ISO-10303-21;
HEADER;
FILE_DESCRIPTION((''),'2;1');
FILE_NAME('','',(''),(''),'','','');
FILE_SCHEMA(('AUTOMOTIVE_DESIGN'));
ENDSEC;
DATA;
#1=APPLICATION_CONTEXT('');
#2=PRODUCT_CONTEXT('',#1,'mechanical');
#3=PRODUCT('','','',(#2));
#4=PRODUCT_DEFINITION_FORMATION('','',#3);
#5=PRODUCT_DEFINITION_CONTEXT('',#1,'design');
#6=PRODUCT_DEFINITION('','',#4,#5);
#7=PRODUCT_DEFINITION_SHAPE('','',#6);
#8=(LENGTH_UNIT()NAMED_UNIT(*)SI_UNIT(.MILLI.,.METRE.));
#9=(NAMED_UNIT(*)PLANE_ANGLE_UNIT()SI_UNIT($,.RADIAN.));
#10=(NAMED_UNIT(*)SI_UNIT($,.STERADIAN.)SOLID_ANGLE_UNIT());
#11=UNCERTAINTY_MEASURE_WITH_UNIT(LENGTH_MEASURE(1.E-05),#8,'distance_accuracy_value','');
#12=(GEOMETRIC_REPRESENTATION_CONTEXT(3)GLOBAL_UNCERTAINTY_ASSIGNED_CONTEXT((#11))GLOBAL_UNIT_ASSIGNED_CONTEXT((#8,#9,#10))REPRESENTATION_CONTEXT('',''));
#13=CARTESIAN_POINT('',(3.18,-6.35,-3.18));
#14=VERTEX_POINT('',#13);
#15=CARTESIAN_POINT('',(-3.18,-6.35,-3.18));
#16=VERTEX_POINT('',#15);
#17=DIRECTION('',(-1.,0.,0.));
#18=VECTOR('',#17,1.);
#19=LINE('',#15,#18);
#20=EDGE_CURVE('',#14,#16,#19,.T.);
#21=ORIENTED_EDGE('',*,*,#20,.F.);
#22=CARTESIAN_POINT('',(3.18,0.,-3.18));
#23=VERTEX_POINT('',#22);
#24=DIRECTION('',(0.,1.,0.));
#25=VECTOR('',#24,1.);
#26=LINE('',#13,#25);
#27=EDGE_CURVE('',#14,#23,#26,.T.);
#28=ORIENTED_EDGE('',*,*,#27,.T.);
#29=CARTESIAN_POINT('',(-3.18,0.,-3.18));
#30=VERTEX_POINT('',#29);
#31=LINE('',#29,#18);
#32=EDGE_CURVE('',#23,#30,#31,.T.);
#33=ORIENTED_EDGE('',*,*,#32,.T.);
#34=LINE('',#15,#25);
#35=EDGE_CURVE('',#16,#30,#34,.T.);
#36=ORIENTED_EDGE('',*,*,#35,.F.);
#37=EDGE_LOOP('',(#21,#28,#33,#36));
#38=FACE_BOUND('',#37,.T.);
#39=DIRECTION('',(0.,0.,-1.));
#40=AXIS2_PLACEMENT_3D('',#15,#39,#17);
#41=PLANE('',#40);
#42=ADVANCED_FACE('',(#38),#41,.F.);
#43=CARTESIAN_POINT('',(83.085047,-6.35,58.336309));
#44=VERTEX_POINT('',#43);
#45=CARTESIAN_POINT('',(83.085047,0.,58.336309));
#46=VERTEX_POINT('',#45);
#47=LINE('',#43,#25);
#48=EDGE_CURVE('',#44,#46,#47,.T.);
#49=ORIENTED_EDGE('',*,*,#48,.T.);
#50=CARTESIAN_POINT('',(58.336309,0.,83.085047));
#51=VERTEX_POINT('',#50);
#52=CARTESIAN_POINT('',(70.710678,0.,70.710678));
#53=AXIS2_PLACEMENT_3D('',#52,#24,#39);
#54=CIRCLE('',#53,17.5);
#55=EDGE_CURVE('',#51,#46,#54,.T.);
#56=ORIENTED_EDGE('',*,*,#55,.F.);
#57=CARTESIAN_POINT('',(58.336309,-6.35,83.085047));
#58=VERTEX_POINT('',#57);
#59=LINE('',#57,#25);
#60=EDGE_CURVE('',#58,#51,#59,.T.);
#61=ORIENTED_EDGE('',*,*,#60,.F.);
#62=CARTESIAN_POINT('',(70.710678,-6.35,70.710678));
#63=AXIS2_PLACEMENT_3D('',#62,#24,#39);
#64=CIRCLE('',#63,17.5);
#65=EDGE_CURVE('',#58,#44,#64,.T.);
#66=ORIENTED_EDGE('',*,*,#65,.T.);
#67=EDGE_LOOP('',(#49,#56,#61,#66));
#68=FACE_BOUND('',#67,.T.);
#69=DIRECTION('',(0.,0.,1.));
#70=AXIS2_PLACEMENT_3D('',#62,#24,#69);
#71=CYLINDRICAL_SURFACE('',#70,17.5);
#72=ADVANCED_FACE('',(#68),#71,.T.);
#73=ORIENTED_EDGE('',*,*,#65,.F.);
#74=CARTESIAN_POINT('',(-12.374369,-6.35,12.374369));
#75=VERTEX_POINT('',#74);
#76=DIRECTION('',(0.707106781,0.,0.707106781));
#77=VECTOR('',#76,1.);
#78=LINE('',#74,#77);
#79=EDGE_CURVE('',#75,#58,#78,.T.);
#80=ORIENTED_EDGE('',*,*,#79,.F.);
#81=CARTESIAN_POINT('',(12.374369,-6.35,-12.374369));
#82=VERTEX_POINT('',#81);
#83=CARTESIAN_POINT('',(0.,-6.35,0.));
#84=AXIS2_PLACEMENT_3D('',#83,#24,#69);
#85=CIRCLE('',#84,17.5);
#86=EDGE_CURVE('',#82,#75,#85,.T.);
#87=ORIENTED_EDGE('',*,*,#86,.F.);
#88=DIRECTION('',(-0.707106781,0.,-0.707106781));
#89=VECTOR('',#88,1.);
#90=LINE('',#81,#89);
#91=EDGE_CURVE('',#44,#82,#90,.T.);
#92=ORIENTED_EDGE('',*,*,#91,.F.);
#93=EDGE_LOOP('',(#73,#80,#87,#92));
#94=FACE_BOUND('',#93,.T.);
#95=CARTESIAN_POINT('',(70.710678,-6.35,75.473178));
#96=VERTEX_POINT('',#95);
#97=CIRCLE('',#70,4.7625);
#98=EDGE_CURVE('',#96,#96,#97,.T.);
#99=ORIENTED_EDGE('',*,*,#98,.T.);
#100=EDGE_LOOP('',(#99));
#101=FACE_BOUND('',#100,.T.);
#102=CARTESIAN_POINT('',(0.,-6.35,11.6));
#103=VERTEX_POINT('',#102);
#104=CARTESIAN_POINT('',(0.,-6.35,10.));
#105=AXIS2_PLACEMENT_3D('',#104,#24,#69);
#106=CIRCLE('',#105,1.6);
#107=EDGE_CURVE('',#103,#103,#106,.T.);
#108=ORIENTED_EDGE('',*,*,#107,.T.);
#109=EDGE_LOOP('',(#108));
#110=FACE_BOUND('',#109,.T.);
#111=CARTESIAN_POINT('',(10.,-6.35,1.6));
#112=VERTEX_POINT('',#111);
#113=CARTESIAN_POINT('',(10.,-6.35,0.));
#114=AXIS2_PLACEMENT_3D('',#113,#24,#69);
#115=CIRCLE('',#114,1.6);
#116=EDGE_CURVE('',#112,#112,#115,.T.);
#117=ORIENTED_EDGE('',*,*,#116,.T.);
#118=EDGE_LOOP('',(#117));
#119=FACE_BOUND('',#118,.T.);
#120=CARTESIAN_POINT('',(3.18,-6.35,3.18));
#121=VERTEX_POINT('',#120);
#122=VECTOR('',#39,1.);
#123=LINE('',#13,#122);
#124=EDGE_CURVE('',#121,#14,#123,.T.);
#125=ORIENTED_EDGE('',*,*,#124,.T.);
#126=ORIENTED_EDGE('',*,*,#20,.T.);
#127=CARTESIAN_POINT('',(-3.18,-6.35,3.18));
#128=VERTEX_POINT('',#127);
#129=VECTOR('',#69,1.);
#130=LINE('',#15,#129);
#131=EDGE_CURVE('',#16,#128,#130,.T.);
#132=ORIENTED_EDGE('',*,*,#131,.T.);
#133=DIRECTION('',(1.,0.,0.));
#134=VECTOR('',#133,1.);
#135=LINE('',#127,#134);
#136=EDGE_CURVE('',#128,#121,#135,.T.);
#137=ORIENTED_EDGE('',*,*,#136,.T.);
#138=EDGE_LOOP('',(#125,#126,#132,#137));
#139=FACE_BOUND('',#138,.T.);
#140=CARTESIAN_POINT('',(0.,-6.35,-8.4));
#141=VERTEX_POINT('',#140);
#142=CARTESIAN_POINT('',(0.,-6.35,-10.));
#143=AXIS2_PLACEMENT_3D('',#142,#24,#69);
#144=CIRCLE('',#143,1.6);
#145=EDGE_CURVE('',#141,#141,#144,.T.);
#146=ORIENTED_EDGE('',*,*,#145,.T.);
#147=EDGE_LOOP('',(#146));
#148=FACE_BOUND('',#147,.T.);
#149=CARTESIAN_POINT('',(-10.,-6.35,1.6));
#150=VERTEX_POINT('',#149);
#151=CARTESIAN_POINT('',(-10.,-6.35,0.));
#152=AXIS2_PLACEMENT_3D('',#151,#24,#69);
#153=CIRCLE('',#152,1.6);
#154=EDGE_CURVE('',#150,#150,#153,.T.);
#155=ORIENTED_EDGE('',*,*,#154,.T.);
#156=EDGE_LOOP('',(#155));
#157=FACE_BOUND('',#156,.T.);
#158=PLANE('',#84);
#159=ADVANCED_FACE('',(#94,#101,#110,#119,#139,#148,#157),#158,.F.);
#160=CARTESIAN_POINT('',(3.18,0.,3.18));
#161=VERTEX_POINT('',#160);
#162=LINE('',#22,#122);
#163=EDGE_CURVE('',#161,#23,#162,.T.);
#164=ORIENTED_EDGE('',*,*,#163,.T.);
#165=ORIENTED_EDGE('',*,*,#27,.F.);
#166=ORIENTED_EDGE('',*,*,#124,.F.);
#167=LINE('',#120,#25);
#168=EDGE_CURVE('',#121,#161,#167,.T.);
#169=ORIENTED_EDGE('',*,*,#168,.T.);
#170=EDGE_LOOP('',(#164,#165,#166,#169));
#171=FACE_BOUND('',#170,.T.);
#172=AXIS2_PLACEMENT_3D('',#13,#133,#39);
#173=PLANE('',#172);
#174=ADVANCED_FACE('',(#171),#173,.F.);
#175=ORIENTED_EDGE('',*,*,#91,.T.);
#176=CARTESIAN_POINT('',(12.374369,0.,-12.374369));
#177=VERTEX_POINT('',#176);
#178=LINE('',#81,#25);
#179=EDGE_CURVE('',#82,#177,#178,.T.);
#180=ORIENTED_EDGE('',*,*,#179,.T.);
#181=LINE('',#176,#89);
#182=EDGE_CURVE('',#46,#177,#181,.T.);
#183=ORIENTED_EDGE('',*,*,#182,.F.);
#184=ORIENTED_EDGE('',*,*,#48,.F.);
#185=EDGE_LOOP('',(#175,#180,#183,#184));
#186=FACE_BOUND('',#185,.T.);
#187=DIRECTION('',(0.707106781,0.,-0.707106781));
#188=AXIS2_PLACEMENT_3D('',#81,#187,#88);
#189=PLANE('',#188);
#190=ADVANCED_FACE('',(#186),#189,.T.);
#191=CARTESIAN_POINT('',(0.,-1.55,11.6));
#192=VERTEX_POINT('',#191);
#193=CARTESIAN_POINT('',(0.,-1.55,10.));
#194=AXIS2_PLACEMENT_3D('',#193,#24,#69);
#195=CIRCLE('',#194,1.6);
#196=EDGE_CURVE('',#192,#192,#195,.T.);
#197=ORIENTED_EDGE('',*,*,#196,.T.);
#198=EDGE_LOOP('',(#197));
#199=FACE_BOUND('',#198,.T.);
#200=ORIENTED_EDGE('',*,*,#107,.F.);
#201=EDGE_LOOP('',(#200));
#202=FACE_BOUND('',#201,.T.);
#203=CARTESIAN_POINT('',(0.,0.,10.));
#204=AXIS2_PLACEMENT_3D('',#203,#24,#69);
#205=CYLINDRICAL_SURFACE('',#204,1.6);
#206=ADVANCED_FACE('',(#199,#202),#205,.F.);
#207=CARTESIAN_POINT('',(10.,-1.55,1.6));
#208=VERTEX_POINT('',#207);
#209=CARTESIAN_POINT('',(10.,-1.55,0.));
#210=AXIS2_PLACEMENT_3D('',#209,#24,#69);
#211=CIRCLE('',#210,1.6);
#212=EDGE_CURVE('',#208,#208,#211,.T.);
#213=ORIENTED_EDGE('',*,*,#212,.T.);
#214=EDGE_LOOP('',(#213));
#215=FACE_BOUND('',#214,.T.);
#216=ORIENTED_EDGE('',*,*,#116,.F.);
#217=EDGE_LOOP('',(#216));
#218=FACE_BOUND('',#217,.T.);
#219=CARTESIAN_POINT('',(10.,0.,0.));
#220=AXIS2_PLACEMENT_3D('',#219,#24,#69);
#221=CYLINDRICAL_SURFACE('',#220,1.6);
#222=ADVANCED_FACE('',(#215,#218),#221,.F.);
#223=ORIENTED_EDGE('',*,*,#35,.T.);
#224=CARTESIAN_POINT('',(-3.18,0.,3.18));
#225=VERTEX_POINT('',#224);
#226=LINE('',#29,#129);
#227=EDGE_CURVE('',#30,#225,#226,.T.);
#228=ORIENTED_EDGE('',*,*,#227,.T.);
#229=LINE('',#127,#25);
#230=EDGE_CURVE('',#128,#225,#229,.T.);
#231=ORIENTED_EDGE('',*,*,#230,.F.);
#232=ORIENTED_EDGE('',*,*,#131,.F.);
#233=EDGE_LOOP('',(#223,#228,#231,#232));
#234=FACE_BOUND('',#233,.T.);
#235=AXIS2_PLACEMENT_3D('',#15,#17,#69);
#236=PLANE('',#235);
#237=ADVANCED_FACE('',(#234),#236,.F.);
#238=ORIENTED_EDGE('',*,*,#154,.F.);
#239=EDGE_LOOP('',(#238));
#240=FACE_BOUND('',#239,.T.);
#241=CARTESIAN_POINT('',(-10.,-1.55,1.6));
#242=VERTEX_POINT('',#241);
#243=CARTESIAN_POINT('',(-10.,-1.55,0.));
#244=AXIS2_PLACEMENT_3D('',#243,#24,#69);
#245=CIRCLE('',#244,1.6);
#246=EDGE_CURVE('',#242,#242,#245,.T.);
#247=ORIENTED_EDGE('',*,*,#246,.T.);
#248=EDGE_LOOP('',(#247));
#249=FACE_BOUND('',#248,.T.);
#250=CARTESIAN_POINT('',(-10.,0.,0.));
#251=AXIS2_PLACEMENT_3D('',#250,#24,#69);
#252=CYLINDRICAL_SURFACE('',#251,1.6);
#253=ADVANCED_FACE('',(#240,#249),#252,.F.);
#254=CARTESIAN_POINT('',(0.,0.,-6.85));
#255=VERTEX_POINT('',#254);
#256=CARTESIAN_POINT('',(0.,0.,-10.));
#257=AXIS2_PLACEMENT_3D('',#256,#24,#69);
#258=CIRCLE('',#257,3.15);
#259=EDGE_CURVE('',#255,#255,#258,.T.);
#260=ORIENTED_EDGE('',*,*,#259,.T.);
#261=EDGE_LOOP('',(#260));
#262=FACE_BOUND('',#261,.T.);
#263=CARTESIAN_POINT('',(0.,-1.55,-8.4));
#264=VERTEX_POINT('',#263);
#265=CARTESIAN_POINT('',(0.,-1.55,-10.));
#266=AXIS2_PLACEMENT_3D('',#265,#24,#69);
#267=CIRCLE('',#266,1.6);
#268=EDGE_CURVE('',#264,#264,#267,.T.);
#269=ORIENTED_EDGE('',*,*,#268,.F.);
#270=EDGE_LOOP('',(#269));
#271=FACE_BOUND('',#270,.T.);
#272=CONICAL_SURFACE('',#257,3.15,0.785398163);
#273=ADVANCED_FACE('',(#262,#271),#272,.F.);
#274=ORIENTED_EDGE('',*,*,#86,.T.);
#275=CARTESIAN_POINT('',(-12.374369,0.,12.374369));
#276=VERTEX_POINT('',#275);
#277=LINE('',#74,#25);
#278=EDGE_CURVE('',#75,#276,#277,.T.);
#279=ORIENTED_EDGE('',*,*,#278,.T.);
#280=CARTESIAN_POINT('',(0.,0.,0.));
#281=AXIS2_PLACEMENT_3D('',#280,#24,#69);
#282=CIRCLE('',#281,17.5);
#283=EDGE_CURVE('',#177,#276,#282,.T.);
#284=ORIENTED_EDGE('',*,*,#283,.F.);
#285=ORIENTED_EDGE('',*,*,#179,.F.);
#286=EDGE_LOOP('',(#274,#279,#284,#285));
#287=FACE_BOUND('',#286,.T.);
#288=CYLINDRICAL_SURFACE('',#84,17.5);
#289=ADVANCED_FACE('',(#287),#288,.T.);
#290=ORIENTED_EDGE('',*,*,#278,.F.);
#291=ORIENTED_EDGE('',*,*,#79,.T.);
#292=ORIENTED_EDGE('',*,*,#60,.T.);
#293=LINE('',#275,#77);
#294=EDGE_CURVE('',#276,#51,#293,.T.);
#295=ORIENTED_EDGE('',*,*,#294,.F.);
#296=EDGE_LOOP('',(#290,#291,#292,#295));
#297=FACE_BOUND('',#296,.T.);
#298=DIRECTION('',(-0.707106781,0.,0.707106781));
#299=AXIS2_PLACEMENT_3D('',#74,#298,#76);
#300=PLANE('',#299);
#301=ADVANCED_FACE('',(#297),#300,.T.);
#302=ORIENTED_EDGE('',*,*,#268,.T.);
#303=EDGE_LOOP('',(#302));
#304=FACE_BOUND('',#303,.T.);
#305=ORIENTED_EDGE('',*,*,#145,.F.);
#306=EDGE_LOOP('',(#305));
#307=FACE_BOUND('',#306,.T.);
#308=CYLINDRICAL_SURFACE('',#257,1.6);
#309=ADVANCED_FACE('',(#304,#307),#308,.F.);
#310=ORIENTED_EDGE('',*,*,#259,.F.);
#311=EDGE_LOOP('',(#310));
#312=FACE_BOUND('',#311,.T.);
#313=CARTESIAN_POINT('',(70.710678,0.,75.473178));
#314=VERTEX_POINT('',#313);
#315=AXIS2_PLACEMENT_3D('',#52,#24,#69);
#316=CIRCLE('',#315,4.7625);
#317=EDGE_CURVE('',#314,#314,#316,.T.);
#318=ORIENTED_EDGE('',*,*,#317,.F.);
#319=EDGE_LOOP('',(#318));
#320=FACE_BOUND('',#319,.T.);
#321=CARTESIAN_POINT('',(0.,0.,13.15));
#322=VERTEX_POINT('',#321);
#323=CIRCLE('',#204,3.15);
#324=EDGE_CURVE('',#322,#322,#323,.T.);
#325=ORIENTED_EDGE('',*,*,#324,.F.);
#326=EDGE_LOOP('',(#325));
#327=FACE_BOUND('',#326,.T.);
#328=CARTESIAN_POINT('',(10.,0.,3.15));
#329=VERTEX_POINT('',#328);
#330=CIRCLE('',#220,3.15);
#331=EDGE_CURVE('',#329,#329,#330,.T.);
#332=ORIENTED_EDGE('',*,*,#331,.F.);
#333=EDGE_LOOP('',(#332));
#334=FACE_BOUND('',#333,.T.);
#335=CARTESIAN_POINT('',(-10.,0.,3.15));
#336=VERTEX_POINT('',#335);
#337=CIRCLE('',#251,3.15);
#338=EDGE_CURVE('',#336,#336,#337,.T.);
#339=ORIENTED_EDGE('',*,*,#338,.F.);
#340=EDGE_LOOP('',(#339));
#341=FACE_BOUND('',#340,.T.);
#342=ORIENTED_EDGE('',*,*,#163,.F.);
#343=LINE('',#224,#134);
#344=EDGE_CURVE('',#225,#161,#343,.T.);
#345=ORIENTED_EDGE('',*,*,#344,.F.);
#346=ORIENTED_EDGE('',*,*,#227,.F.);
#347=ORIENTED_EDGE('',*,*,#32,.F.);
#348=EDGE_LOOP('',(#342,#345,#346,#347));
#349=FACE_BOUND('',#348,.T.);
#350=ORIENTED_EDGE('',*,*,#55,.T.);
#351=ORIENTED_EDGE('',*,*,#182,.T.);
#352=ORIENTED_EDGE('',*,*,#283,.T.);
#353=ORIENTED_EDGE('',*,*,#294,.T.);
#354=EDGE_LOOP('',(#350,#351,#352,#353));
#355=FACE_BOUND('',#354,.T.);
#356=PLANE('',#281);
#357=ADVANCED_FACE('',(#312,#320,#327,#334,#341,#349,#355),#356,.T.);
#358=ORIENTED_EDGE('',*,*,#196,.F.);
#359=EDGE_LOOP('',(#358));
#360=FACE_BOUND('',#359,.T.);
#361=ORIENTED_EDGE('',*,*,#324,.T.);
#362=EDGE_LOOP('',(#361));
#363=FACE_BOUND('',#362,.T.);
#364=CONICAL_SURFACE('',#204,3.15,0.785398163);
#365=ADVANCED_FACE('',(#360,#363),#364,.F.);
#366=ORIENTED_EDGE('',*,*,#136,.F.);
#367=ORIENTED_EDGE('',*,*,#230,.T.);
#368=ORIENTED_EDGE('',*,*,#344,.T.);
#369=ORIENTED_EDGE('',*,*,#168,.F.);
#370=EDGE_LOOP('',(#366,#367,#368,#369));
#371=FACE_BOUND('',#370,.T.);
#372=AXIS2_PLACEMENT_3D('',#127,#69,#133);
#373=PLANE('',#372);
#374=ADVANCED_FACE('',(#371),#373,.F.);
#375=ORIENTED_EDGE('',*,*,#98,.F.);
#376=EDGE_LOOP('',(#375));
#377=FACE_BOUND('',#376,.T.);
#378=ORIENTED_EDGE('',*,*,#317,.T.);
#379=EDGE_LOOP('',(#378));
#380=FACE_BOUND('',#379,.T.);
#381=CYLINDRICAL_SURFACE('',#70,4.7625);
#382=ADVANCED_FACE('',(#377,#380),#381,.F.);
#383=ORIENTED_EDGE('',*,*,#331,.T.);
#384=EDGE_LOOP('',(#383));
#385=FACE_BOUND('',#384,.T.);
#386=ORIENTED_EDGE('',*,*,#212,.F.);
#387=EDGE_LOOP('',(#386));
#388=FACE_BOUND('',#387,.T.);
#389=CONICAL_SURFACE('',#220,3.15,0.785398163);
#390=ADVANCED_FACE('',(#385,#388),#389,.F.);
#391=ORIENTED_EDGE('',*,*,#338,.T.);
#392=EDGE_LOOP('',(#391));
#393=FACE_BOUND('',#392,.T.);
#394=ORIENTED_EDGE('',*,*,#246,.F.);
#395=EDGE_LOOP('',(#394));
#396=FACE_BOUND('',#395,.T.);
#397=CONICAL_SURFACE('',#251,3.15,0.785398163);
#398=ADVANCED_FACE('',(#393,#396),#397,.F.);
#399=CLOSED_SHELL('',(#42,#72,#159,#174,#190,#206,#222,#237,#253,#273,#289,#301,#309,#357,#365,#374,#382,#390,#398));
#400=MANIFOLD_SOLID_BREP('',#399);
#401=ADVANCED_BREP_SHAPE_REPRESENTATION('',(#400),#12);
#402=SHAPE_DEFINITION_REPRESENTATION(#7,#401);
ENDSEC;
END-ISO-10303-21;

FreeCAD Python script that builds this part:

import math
import FreeCAD as App
import Part
import Sketcher

V = App.Vector
Q = App.Units.Quantity


def add_polygon(sketch, points):
    """Adds a closed chain of lines whose ends are joined by coincident constraints."""
    first, n = sketch.GeometryCount, len(points)
    for a, b in zip(points, points[1:] + points[:1]):
        sketch.addGeometry(Part.LineSegment(App.Vector(*a, 0), App.Vector(*b, 0)), False)
    for i in range(n):
        sketch.addConstraint(Sketcher.Constraint("Coincident", first + i, 2, first + (i + 1) % n, 1))

doc = App.newDocument("Part")
body = doc.addObject("PartDesign::Body", "Body")

sketch1 = body.newObject("Sketcher::SketchObject", "Sketch")
sketch1.AttachmentSupport = (doc.getObject("XZ_Plane"), [""])
sketch1.MapMode = "FlatFace"
sketch1.addGeometry(Part.LineSegment(V(83.085047, 58.336309, 0), V(12.374369, -12.374369, 0)), False)
sketch1.addGeometry(Part.ArcOfCircle(Part.Circle(V(0, 0, 0), V(0, 0, 1), 17.5), math.radians(135), math.radians(315)), False)
sketch1.addGeometry(Part.LineSegment(V(-12.374369, 12.374369, 0), V(58.336309, 83.085047, 0)), False)
sketch1.addGeometry(Part.ArcOfCircle(Part.Circle(V(70.710678, 70.710678, 0), V(0, 0, 1), 17.5), math.radians(-45), math.radians(135)), False)
sketch1.addGeometry(Part.Circle(V(70.710678, 70.710678, 0), V(0, 0, 1), 4.7625), False)
add_polygon(sketch1, [(-3.18, 3.18), (-3.18, -3.18), (3.18, -3.18), (3.18, 3.18)])
sketch1.addConstraint([
    Sketcher.Constraint("Tangent", 0, 2, 1, 2),
    Sketcher.Constraint("Tangent", 1, 1, 2, 1),
    Sketcher.Constraint("Tangent", 2, 2, 3, 2),
    Sketcher.Constraint("Tangent", 3, 1, 0, 1),
    Sketcher.Constraint("Vertical", 5),
    Sketcher.Constraint("Horizontal", 6),
    Sketcher.Constraint("Vertical", 7),
    Sketcher.Constraint("Horizontal", 8),
    Sketcher.Constraint("Coincident", 1, 3, -1, 1),
    Sketcher.Constraint("Coincident", 4, 3, 3, 3),
    Sketcher.Constraint("Equal", 1, 3),
    Sketcher.Constraint("Symmetric", 5, 2, 7, 2, -1, 1),
    Sketcher.Constraint("Equal", 8, 5),
    Sketcher.Constraint("Radius", 1, Q("17.5 mm")),
    Sketcher.Constraint("Angle", 0, Q("-135 deg")),
    Sketcher.Constraint("Distance", 0, Q("100 mm")),
    Sketcher.Constraint("Diameter", 4, Q("9.525 mm")),
    Sketcher.Constraint("DistanceX", 6, 1, 6, 2, Q("6.36 mm")),
])
pad1 = body.newObject("PartDesign::Pad", "Pad")
pad1.Profile = sketch1
pad1.Length = 6.35

sketch2 = body.newObject("Sketcher::SketchObject", "Sketch001")
sketch2.AttachmentSupport = (doc.getObject("XZ_Plane"), [""])
sketch2.MapMode = "FlatFace"
sketch2.addGeometry([
    Part.Circle(V(0, -10, 0), V(0, 0, 1), 1.6),
    Part.Circle(V(-10, 0, 0), V(0, 0, 1), 1.6),
    Part.Circle(V(10, 0, 0), V(0, 0, 1), 1.6),
    Part.Circle(V(0, 10, 0), V(0, 0, 1), 1.6),
], False)
sketch2.addConstraint([
    Sketcher.Constraint("Equal", 0, 1),
    Sketcher.Constraint("Equal", 1, 2),
    Sketcher.Constraint("Equal", 2, 3),
    Sketcher.Constraint("Symmetric", 1, 3, 2, 3, -1, 1),
    Sketcher.Constraint("Symmetric", 0, 3, 3, 3, -1, 1),
    Sketcher.Constraint("PointOnObject", 0, 3, -2),
    Sketcher.Constraint("PointOnObject", 1, 3, -1),
    Sketcher.Constraint("Diameter", 0, Q("3.2 mm")),
    Sketcher.Constraint("DistanceY", 0, 3, -1, 1, Q("10 mm")),
    Sketcher.Constraint("DistanceX", 1, 3, -1, 1, Q("10 mm")),
])
doc.recompute()
hole = body.newObject("PartDesign::Hole", "Hole")
hole.Profile = sketch2
hole.ThreadType = "None"
hole.Diameter = 3.2
hole.DepthType = "ThroughAll"
hole.HoleCutType = "Countersink"
hole.HoleCutDiameter = 6.3
hole.HoleCutCountersinkAngle = 90
hole.Reversed = True

doc.recompute()
